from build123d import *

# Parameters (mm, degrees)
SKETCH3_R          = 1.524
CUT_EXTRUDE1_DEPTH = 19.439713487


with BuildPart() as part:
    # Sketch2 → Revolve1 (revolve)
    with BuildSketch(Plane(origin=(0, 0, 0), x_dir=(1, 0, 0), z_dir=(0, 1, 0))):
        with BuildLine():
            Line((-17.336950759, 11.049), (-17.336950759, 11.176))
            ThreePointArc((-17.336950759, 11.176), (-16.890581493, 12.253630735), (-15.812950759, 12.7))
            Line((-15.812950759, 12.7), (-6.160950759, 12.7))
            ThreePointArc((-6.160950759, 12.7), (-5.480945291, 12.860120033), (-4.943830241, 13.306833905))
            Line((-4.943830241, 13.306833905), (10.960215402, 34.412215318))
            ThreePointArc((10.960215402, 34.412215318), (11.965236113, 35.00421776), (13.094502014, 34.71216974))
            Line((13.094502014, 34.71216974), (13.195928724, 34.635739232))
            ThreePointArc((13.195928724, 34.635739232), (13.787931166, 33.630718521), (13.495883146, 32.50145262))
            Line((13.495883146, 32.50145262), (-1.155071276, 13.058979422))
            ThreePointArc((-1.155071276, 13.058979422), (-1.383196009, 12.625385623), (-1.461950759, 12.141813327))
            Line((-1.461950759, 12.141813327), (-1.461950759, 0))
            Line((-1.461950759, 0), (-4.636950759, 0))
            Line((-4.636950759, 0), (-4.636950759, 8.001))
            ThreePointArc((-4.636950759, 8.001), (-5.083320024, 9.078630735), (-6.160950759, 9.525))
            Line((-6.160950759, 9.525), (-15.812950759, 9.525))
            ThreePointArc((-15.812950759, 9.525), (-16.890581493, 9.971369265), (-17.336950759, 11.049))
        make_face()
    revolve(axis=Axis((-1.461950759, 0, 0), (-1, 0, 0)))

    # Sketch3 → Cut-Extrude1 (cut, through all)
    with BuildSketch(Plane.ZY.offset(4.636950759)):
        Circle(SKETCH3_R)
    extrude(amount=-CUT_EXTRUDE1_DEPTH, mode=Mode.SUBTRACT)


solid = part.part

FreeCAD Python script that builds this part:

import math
import FreeCAD as App
import Part
import Sketcher
Q = App.Units.Quantity

doc = App.newDocument("Part")
body = doc.addObject("PartDesign::Body", "Body")

# Sketch on XZ plane
sketch1 = body.newObject("Sketcher::SketchObject", "Sketch")
sketch1.AttachmentSupport = (doc.getObject("XZ_Plane"), [""])
sketch1.MapMode = "FlatFace"
sketch1.addGeometry([
    Part.LineSegment(App.Vector(-17.336951, -11.176, 0), App.Vector(-17.336951, -11.049, 0)),  # 0
    Part.ArcOfCircle(Part.Circle(App.Vector(-15.812951, -11.049, 0), App.Vector(0, 0, 1), 1.524), math.radians(90), math.radians(180)),  # 1
    Part.LineSegment(App.Vector(-15.812951, -9.525, 0), App.Vector(-6.160951, -9.525, 0)),  # 2
    Part.ArcOfCircle(Part.Circle(App.Vector(-6.160951, -8.001, 0), App.Vector(0, 0, 1), 1.524), math.radians(-90), math.radians(0)),  # 3
    Part.LineSegment(App.Vector(-4.636951, -8.001, 0), App.Vector(-4.636951, 0, 0)),  # 4
    Part.LineSegment(App.Vector(-4.636951, 0, 0), App.Vector(-1.461951, 0, 0)),  # 5
    Part.LineSegment(App.Vector(-1.461951, 0, 0), App.Vector(-1.461951, -12.141813, 0)),  # 6
    Part.ArcOfCircle(Part.Circle(App.Vector(0.062049, -12.141813, 0), App.Vector(0, 0, 1), 1.524), math.radians(-180), math.radians(-143)),  # 7
    Part.LineSegment(App.Vector(-1.155071, -13.058979, 0), App.Vector(13.495883, -32.501453, 0)),  # 8
    Part.ArcOfCircle(Part.Circle(App.Vector(12.278763, -33.418619, 0), App.Vector(0, 0, 1), 1.524), math.radians(-53), math.radians(37)),  # 9
    Part.LineSegment(App.Vector(13.195929, -34.635739, 0), App.Vector(13.094502, -34.71217, 0)),  # 10
    Part.ArcOfCircle(Part.Circle(App.Vector(12.177336, -33.495049, 0), App.Vector(0, 0, 1), 1.524), math.radians(-143), math.radians(-53)),  # 11
    Part.LineSegment(App.Vector(10.960215, -34.412215, 0), App.Vector(-4.94383, -13.306834, 0)),  # 12
    Part.ArcOfCircle(Part.Circle(App.Vector(-6.160951, -14.224, 0), App.Vector(0, 0, 1), 1.524), math.radians(37), math.radians(90)),  # 13
    Part.LineSegment(App.Vector(-6.160951, -12.7, 0), App.Vector(-15.812951, -12.7, 0)),  # 14
    Part.ArcOfCircle(Part.Circle(App.Vector(-15.812951, -11.176, 0), App.Vector(0, 0, 1), 1.524), math.radians(180), math.radians(270)),  # 15
], False)
sketch1.addConstraint([
    Sketcher.Constraint("Tangent", 0, 2, 1, 2),
    Sketcher.Constraint("Tangent", 1, 1, 2, 1),
    Sketcher.Constraint("Tangent", 2, 2, 3, 1),
    Sketcher.Constraint("Tangent", 3, 2, 4, 1),
    Sketcher.Constraint("Coincident", 4, 2, 5, 1),
    Sketcher.Constraint("Coincident", 5, 2, 6, 1),
    Sketcher.Constraint("Tangent", 6, 2, 7, 1),
    Sketcher.Constraint("Tangent", 7, 2, 8, 1),
    Sketcher.Constraint("Tangent", 8, 2, 9, 2),
    Sketcher.Constraint("Tangent", 9, 1, 10, 1),
    Sketcher.Constraint("Tangent", 10, 2, 11, 2),
    Sketcher.Constraint("Tangent", 11, 1, 12, 1),
    Sketcher.Constraint("Tangent", 12, 2, 13, 1),
    Sketcher.Constraint("Tangent", 13, 2, 14, 1),
    Sketcher.Constraint("Tangent", 14, 2, 15, 2),
    Sketcher.Constraint("Tangent", 15, 1, 0, 1),
    Sketcher.Constraint("Vertical", 0),
    Sketcher.Constraint("Horizontal", 2),
    Sketcher.Constraint("Vertical", 4),
    Sketcher.Constraint("Horizontal", 5),
    Sketcher.Constraint("Vertical", 6),
    Sketcher.Constraint("Horizontal", 14),
    Sketcher.Constraint("Equal", 1, 3),
    Sketcher.Constraint("Equal", 3, 7),
    Sketcher.Constraint("Equal", 7, 9),
    Sketcher.Constraint("Equal", 9, 11),
    Sketcher.Constraint("Equal", 11, 13),
    Sketcher.Constraint("Equal", 13, 15),
    Sketcher.Constraint("PointOnObject", 4, 2, -1),
    Sketcher.Constraint("Perpendicular", 8, 10),
    Sketcher.Constraint("Perpendicular", 10, 12),
    Sketcher.Constraint("Vertical", 3, 3, 13, 3),
    Sketcher.Constraint("Radius", 1, Q("0.06 in")),
    Sketcher.Constraint("Angle", 8, Q("-53 deg")),
    Sketcher.Constraint("DistanceX", 2, 1, 2, 2, Q("0.38 in")),
    Sketcher.Constraint("DistanceY", 13, 2, -1, 1, Q("0.5 in")),
    Sketcher.Constraint("DistanceX", 5, 1, 5, 2, Q("0.125 in")),
    Sketcher.Constraint("DistanceY", 0, 1, 0, 2, Q("0.005 in")),
    Sketcher.Constraint("Distance", 10, Q("0.005 in")),
    Sketcher.Constraint("DistanceX", 7, 2, 9, 1, Q("0.565 in")),
    Sketcher.Constraint("DistanceX", 1, 3, -1, 1, 15.812951),
])
revolution = body.newObject("PartDesign::Revolution", "Revolution")
revolution.Profile = sketch1
revolution.ReferenceAxis = (sketch1, ["H_Axis"])
revolution.Angle = 360

# Sketch on YZ plane
sketch2 = body.newObject("Sketcher::SketchObject", "Sketch001")
sketch2.AttachmentSupport = (doc.getObject("YZ_Plane"), [""])
sketch2.MapMode = "FlatFace"
sketch2.AttachmentOffset = App.Placement(App.Vector(0, 0, -4.636951), App.Rotation())
sketch2.addGeometry(Part.Circle(App.Vector(0, 0, 0), App.Vector(0, 0, 1), 1.524), False)
sketch2.addConstraint([
    Sketcher.Constraint("Coincident", 0, 3, -1, 1),
    Sketcher.Constraint("Diameter", 0, Q("0.12 in")),
])
pocket1 = body.newObject("PartDesign::Pocket", "Pocket")
pocket1.Profile = sketch2
pocket1.Type = "ThroughAll"
pocket1.Reversed = True

doc.recompute()
